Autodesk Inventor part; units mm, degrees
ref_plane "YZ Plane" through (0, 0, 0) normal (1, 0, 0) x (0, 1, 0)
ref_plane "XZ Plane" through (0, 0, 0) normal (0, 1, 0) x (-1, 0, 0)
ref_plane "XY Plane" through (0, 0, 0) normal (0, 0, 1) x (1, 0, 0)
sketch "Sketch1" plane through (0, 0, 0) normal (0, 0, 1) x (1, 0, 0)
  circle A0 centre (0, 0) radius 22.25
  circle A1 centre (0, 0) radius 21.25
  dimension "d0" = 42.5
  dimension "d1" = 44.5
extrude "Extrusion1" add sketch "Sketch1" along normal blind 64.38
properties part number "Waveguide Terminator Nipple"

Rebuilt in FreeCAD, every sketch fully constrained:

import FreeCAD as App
import Part
import Sketcher
from FreeCAD import Vector

doc = App.newDocument("Part")
body = doc.addObject("PartDesign::Body", "Body")

# Sketch on XY plane
sketch1 = doc.addObject("Sketcher::SketchObject", "Sketch")
body.addObject(sketch1)
sketch1.AttachmentSupport = (doc.XY_Plane, [""])
sketch1.MapMode = "FlatFace"
sketch1.addGeometry([
    Part.Circle(Vector(0, 0, 0), Vector(0, 0, 1), 22),
    Part.Circle(Vector(0, 0, 0), Vector(0, 0, 1), 21),
], False)
sketch1.addConstraint([
    Sketcher.Constraint("Coincident", 0, 3, -1, 1),
    Sketcher.Constraint("Coincident", 1, 3, -1, 1),
    Sketcher.Constraint("Diameter", 0, 44.5),
    Sketcher.Constraint("Diameter", 1, 42.5),
])
pad1 = doc.addObject("PartDesign::Pad", "Pad")
body.addObject(pad1)
pad1.Profile = sketch1
pad1.Length = 64.38

doc.recompute()
